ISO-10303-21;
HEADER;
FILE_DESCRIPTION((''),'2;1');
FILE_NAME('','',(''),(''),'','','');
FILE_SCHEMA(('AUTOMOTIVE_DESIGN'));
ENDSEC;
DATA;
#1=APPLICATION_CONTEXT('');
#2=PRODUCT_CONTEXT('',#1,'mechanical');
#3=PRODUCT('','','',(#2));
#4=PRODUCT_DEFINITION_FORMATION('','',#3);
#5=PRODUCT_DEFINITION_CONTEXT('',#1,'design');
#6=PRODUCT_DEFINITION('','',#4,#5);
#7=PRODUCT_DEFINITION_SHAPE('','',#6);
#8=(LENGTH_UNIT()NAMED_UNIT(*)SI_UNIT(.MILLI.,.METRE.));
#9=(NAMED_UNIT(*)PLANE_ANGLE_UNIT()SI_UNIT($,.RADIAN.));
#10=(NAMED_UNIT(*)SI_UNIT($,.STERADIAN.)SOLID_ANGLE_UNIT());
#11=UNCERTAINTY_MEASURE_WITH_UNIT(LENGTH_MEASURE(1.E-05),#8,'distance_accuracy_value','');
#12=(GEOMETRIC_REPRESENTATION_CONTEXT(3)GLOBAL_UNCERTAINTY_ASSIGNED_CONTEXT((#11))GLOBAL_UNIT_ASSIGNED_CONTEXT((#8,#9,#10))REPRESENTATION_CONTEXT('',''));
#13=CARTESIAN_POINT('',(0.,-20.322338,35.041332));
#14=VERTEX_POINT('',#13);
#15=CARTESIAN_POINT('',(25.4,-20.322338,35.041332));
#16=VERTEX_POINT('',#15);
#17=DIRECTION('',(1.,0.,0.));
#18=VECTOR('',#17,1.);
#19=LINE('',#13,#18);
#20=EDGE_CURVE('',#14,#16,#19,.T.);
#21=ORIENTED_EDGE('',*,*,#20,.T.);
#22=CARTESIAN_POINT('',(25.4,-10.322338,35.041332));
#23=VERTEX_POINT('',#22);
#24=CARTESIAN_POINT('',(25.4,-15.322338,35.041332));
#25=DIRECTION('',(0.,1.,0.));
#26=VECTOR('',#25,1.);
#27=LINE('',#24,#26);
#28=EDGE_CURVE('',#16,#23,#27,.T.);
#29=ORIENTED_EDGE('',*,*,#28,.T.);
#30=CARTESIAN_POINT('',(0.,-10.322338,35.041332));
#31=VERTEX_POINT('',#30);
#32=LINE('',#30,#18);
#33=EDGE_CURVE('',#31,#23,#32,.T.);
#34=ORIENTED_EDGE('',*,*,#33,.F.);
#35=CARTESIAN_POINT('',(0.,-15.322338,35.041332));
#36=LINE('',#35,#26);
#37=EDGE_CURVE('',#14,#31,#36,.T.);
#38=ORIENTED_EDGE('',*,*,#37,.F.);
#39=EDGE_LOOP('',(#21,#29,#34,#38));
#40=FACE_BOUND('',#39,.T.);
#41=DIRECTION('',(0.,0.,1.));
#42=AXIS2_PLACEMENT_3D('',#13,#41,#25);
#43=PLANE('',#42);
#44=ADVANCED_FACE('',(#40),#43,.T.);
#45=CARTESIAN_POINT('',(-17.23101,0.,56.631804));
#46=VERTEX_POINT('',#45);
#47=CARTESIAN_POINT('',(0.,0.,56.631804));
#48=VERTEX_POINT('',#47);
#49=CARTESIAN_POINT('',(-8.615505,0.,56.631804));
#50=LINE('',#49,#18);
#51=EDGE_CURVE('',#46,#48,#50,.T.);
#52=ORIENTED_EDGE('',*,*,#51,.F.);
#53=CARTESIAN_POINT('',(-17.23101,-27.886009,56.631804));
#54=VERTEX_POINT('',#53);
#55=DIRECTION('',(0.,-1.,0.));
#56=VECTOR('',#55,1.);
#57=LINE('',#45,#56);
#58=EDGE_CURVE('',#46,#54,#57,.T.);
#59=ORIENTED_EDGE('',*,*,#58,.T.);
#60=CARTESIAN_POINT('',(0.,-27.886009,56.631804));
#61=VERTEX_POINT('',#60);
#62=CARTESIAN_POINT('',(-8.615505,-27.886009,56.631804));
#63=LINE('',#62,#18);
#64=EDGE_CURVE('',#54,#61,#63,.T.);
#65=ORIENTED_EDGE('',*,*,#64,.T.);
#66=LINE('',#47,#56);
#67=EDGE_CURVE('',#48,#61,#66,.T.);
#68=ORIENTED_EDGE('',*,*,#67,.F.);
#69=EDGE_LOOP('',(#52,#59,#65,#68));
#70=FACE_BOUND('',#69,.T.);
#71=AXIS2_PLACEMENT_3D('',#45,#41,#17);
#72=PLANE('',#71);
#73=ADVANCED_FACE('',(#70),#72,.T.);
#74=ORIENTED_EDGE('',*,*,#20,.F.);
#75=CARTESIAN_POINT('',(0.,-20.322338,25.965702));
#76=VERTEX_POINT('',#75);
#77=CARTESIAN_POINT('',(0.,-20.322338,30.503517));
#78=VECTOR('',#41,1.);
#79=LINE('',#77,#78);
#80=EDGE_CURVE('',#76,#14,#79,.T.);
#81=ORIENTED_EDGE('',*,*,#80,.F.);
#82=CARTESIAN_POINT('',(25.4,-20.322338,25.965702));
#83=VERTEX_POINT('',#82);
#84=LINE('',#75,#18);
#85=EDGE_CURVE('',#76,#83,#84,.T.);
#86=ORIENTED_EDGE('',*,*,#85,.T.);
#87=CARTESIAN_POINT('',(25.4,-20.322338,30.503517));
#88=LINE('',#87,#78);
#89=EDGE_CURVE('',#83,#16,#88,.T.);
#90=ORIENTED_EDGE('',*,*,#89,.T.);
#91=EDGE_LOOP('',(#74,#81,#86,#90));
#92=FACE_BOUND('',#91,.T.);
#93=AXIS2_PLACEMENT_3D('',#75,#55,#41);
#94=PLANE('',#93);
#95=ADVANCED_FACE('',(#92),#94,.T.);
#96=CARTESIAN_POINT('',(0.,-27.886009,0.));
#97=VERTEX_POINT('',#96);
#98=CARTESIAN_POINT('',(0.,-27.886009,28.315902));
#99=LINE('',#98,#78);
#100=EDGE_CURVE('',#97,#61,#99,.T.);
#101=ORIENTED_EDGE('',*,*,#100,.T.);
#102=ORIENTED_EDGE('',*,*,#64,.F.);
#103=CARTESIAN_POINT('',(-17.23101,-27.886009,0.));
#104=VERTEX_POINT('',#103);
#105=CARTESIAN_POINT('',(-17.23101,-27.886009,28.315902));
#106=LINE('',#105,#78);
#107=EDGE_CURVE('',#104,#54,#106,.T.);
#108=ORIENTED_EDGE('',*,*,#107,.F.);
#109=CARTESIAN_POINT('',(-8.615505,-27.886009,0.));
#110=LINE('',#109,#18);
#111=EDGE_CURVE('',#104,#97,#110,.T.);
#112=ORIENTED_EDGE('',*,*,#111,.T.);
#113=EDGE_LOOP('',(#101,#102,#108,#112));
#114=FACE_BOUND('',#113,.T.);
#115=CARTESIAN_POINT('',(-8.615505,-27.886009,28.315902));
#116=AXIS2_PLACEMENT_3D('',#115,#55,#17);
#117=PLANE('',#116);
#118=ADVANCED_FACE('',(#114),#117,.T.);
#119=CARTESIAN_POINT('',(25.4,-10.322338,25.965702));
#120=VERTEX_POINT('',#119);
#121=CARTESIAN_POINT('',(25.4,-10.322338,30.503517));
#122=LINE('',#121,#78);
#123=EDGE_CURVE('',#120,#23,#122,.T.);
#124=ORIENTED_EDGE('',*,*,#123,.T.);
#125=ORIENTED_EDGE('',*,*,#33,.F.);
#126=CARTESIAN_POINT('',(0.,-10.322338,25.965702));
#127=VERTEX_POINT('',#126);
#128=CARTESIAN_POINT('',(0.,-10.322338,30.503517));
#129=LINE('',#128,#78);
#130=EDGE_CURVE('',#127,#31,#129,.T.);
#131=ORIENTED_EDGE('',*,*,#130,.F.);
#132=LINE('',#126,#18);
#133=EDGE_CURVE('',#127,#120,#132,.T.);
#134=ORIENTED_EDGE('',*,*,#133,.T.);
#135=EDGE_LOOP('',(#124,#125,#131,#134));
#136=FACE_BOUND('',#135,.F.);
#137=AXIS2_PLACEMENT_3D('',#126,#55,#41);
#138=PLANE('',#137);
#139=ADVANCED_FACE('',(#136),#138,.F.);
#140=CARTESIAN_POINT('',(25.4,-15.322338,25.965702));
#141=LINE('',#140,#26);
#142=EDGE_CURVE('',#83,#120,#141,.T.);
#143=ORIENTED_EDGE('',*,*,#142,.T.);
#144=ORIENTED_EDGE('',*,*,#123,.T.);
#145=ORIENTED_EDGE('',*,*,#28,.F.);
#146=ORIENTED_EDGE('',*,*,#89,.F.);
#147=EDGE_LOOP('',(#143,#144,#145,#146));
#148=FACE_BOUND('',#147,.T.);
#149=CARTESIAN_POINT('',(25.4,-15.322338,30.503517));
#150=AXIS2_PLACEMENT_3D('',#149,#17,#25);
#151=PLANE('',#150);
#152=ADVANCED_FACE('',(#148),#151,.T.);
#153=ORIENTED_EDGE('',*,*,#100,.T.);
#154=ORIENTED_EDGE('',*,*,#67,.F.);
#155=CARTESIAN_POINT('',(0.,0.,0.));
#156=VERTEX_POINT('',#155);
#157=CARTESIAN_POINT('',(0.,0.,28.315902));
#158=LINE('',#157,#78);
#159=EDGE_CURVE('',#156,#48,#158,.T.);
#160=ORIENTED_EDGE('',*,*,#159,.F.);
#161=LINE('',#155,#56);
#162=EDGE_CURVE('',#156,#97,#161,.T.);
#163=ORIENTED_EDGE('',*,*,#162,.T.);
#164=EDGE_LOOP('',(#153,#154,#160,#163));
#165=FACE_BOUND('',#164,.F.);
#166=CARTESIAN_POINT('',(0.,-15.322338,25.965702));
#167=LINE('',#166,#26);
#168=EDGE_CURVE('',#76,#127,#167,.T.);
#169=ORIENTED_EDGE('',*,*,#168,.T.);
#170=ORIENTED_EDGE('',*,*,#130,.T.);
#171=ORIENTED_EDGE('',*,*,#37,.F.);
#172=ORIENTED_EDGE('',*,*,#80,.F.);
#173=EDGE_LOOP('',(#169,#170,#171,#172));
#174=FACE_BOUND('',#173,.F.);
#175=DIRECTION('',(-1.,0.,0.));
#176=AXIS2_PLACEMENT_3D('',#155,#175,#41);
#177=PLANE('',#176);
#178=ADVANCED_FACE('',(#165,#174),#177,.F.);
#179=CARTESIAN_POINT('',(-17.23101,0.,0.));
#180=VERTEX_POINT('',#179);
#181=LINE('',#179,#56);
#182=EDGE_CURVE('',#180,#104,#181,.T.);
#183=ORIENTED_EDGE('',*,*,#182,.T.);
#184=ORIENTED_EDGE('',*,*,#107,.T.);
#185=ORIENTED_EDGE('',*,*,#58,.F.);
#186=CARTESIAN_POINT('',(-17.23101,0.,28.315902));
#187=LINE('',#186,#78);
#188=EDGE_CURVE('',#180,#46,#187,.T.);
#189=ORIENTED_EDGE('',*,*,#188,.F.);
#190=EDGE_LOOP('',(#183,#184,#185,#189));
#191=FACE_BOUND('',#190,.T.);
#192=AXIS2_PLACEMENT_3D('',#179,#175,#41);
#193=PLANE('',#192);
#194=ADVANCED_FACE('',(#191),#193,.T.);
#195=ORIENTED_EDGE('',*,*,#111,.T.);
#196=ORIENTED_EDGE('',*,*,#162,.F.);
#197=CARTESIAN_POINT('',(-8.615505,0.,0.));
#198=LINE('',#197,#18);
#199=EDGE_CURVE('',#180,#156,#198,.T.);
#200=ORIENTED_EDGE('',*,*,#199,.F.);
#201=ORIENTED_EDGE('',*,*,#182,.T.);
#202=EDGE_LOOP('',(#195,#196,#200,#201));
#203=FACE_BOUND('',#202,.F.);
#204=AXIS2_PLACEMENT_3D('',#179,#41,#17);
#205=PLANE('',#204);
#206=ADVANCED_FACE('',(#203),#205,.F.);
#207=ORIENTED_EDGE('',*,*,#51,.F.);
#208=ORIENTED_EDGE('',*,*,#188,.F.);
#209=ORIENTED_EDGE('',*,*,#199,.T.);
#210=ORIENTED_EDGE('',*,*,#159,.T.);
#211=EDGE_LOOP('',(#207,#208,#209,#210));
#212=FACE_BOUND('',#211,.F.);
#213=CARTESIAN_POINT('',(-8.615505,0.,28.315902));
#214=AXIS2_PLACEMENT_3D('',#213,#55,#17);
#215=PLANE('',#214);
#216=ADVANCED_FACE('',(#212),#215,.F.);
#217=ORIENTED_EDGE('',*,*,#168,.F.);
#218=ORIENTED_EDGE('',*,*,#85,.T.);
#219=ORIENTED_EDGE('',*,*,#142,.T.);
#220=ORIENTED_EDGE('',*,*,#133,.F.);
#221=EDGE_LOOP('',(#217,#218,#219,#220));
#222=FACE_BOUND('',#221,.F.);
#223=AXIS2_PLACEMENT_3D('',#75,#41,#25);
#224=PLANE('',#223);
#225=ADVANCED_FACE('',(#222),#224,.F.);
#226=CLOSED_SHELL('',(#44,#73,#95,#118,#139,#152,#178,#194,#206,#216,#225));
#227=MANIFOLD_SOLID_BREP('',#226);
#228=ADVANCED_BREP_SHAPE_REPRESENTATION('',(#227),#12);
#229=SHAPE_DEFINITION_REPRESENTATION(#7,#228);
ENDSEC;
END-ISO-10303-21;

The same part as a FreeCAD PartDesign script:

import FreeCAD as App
import Part
import Sketcher

V = App.Vector


def add_polygon(sketch, points):
    """Adds a closed chain of lines whose ends are joined by coincident constraints."""
    first, n = sketch.GeometryCount, len(points)
    for a, b in zip(points, points[1:] + points[:1]):
        sketch.addGeometry(Part.LineSegment(App.Vector(*a, 0), App.Vector(*b, 0)), False)
    for i in range(n):
        sketch.addConstraint(Sketcher.Constraint("Coincident", first + i, 2, first + (i + 1) % n, 1))

doc = App.newDocument("Part")
body = doc.addObject("PartDesign::Body", "Body")

sketch1 = body.newObject("Sketcher::SketchObject", "Sketch")
sketch1.AttachmentSupport = (doc.getObject("XZ_Plane"), [""])
sketch1.MapMode = "FlatFace"
add_polygon(sketch1, [(-17, 57), (-17, 0), (0, 0), (0, 57)])
sketch1.addConstraint([
    Sketcher.Constraint("Vertical", 0),
    Sketcher.Constraint("Horizontal", 1),
    Sketcher.Constraint("Vertical", 2),
    Sketcher.Constraint("Horizontal", 3),
    Sketcher.Constraint("Coincident", 1, 2, -1, 1),
    Sketcher.Constraint("DistanceX", 1, 1, 1, 2, 17.23101),
    Sketcher.Constraint("DistanceY", 0, 2, 0, 1, 56.631804),
])
pad1 = body.newObject("PartDesign::Pad", "Pad")
pad1.Profile = sketch1
pad1.Length = 27.886009

sketch2 = body.newObject("Sketcher::SketchObject", "Sketch001")
sketch2.AttachmentSupport = (doc.getObject("YZ_Plane"), [""])
sketch2.MapMode = "FlatFace"
add_polygon(sketch2, [(-20, 35), (-20, 26), (-10, 26), (-10, 35)])
sketch2.addConstraint([
    Sketcher.Constraint("Vertical", 0),
    Sketcher.Constraint("Horizontal", 1),
    Sketcher.Constraint("Vertical", 2),
    Sketcher.Constraint("Horizontal", 3),
    Sketcher.Constraint("DistanceX", 1, 1, 1, 2, 10.0),
    Sketcher.Constraint("DistanceY", 0, 2, 0, 1, 9.07563),
    Sketcher.Constraint("DistanceY", -1, 1, 2, 2, 35.041332),
    Sketcher.Constraint("DistanceX", 0, 2, -1, 1, 20.322338),
])
pad2 = body.newObject("PartDesign::Pad", "Pad001")
pad2.Profile = sketch2
pad2.Length = 25.4

doc.recompute()
